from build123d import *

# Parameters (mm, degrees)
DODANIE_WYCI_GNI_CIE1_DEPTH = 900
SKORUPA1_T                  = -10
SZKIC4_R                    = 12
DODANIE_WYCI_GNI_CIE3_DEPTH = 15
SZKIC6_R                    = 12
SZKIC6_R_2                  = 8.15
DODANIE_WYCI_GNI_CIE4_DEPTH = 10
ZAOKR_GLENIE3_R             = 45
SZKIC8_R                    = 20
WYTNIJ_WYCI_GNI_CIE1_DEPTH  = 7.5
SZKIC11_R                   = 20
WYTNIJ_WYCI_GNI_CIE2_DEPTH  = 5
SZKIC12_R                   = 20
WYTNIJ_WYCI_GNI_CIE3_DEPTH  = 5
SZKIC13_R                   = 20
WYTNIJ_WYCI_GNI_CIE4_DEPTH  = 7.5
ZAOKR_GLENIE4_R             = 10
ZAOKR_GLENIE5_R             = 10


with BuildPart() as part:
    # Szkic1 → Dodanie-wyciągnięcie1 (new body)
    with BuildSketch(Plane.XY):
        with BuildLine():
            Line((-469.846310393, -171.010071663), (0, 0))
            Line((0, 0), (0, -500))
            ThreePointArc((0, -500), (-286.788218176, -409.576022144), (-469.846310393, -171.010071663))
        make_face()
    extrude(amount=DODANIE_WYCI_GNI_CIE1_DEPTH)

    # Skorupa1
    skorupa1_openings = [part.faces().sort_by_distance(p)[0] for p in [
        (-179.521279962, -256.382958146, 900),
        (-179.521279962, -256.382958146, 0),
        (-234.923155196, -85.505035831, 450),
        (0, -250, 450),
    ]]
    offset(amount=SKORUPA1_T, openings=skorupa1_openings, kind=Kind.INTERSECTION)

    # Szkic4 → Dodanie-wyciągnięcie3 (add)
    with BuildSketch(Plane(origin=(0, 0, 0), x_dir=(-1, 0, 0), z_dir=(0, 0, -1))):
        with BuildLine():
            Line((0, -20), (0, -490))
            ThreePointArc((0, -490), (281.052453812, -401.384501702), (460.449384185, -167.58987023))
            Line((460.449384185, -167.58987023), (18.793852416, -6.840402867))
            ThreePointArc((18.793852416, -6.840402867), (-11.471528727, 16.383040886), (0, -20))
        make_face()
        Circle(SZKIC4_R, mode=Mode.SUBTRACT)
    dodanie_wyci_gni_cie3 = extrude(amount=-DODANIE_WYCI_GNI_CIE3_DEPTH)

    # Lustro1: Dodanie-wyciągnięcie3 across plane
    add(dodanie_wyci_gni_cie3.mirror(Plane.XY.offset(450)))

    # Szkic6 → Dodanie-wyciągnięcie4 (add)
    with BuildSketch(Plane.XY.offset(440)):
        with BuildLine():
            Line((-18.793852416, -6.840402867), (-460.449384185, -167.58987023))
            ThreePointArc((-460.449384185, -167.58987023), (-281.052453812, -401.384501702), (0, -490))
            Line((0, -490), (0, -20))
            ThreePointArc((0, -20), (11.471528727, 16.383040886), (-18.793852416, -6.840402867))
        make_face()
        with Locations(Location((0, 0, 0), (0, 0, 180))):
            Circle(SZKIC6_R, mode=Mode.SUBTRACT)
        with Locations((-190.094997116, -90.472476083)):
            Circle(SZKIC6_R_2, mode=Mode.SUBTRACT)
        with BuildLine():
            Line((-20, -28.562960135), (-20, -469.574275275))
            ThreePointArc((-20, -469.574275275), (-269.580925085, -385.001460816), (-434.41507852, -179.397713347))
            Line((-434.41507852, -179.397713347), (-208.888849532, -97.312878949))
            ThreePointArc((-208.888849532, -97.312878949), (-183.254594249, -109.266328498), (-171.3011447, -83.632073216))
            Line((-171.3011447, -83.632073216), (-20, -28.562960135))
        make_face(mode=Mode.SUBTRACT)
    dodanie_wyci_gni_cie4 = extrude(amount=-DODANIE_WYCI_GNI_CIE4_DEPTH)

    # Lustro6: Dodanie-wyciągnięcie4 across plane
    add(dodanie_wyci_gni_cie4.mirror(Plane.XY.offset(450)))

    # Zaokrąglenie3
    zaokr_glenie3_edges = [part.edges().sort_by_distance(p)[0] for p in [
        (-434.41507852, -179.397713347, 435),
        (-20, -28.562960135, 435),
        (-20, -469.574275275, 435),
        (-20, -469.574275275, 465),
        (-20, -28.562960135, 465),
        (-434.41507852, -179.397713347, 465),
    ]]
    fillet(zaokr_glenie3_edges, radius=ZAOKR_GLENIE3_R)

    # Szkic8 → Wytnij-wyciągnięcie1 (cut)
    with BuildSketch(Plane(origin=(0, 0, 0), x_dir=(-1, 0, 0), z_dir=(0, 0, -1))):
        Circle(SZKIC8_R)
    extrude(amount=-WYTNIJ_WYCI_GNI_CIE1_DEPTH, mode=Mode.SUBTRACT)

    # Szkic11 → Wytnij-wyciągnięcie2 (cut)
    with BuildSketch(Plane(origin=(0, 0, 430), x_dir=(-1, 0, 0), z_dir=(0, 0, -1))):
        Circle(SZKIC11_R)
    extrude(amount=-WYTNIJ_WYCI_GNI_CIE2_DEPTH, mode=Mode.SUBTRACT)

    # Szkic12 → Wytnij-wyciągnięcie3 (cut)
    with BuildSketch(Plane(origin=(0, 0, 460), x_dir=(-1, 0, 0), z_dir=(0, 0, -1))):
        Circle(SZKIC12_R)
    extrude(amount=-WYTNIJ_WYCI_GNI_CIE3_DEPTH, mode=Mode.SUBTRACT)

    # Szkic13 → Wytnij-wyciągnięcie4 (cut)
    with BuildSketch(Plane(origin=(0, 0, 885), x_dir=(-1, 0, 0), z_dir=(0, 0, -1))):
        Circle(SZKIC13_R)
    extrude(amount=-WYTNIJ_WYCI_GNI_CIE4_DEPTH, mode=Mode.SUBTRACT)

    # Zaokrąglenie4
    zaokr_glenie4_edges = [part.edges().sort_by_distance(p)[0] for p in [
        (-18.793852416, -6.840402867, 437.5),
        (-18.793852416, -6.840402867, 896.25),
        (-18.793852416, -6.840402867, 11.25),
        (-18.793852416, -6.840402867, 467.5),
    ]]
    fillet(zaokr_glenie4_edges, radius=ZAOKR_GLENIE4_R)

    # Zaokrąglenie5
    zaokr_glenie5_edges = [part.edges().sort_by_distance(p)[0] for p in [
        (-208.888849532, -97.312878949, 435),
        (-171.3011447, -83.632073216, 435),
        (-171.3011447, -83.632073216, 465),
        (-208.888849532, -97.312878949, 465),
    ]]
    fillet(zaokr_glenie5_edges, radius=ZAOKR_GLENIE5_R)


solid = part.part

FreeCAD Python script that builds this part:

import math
import FreeCAD as App
import Part
import Sketcher

V = App.Vector
Q = App.Units.Quantity


def edges_at(feature, points):
    """Names of the edges that pass closest to the given points."""
    edges = feature.Shape.Edges
    near = lambda p: min(range(len(edges)), key=lambda i: edges[i].distToShape(Part.Vertex(*p))[0])
    return sorted({f"Edge{near(p) + 1}" for p in points})


def faces_at(feature, points):
    """Names of the faces that lie closest to the given points."""
    faces = feature.Shape.Faces
    near = lambda p: min(range(len(faces)), key=lambda i: faces[i].distToShape(Part.Vertex(*p))[0])
    return sorted({f"Face{near(p) + 1}" for p in points})

doc = App.newDocument("Part")
body = doc.addObject("PartDesign::Body", "Body")

# Sketch on XY plane
sketch1 = body.newObject("Sketcher::SketchObject", "Sketch")
sketch1.AttachmentSupport = (doc.getObject("XY_Plane"), [""])
sketch1.MapMode = "FlatFace"
sketch1.addGeometry([
    Part.LineSegment(V(0, 0, 0), V(-470, -171, 0)),
    Part.ArcOfCircle(Part.Circle(V(0, 0, 0), V(0, 0, 1), 500), math.radians(-160), math.radians(-90)),
    Part.LineSegment(V(0, -500, 0), V(0, 0, 0)),
], False)
sketch1.addConstraint([
    Sketcher.Constraint("Coincident", 0, 2, 1, 1),
    Sketcher.Constraint("Coincident", 1, 2, 2, 1),
    Sketcher.Constraint("Coincident", 2, 2, 0, 1),
    Sketcher.Constraint("Vertical", 2),
    Sketcher.Constraint("Coincident", 1, 3, -1, 1),
    Sketcher.Constraint("Coincident", 2, 2, -1, 1),
    Sketcher.Constraint("Radius", 1, Q("500 mm")),
    Sketcher.Constraint("Angle", 0, Q("-160 deg")),
])
pad1 = body.newObject("PartDesign::Pad", "Pad")
pad1.Profile = sketch1
pad1.Length = 900
doc.recompute()

thickness = body.newObject("PartDesign::Thickness", "Thickness")
thickness.Base = (pad1, faces_at(pad1, [
    (-234.923, -250, 900),
    (-234.923, -250, 0),
    (-234.923, -85.505, 450),
    (0, -250, 450),
]))
thickness.Value = 10
thickness.Reversed = True
thickness.Join = "Intersection"

# Sketch on XY plane
sketch2 = body.newObject("Sketcher::SketchObject", "Sketch001")
sketch2.AttachmentSupport = (doc.getObject("XY_Plane"), [""])
sketch2.MapMode = "FlatFace"
sketch2.addGeometry([
    Part.LineSegment(V(0, -20, 0), V(0, -490, 0)),  # 0
    Part.ArcOfCircle(Part.Circle(V(0, 0, 0), V(0, 0, 1), 490), math.radians(-160), math.radians(-90)),  # 1
    Part.LineSegment(V(-460, -168, 0), V(-19, -7, 0)),  # 2
    Part.ArcOfCircle(Part.Circle(V(0, 0, 0), V(0, 0, 1), 20), math.radians(-90), math.radians(200)),  # 3
    Part.Circle(V(0, 0, 0), V(0, 0, 1), 12),  # 4
], False)
sketch2.addConstraint([
    Sketcher.Constraint("Coincident", 0, 2, 1, 2),
    Sketcher.Constraint("Coincident", 1, 1, 2, 1),
    Sketcher.Constraint("Coincident", 2, 2, 3, 2),
    Sketcher.Constraint("Coincident", 3, 1, 0, 1),
    Sketcher.Constraint("Vertical", 0),
    Sketcher.Constraint("Coincident", 1, 3, -1, 1),
    Sketcher.Constraint("Coincident", 3, 3, -1, 1),
    Sketcher.Constraint("Coincident", 4, 3, -1, 1),
    Sketcher.Constraint("PointOnObject", 0, 2, -2),
    Sketcher.Constraint("Diameter", 4, Q("24 mm")),
    Sketcher.Constraint("Radius", 1, Q("490 mm")),
    Sketcher.Constraint("Radius", 3, Q("20 mm")),
    Sketcher.Constraint("Angle", 2, Q("20 deg")),
    Sketcher.Constraint("DistanceX", 2, 2, -1, 1, Q("18.793852 mm")),
])
pad2 = body.newObject("PartDesign::Pad", "Pad001")
pad2.Profile = sketch2
pad2.Length = 15
doc.recompute()

datumplane = body.newObject("PartDesign::Plane", "DatumPlane")
datumplane.AttachmentSupport = (doc.getObject("XY_Plane"), [""])
datumplane.MapMode = "FlatFace"
datumplane.AttachmentOffset = App.Placement(V(0, 0, 450), App.Rotation())
mirrored = body.newObject("PartDesign::Mirrored", "Mirrored")
mirrored.Originals = [pad2]
mirrored.MirrorPlane = (datumplane, [""])
body.Tip = mirrored

# Sketch on XY plane
sketch3 = body.newObject("Sketcher::SketchObject", "Sketch002")
sketch3.AttachmentSupport = (doc.getObject("XY_Plane"), [""])
sketch3.MapMode = "FlatFace"
sketch3.AttachmentOffset = App.Placement(V(0, 0, 440), App.Rotation())
sketch3.addGeometry([
    Part.LineSegment(V(-19, -7, 0), V(-460, -168, 0)),  # 0
    Part.ArcOfCircle(Part.Circle(V(0, 0, 0), V(0, 0, 1), 490), math.radians(-160), math.radians(-90)),  # 1
    Part.LineSegment(V(0, -490, 0), V(0, -20, 0)),  # 2
    Part.ArcOfCircle(Part.Circle(V(0, 0, 0), V(0, 0, 1), 20), math.radians(-90), math.radians(200)),  # 3
    Part.LineSegment(V(-171, -84, 0), V(-20, -29, 0)),  # 4
    Part.LineSegment(V(-20, -29, 0), V(-20, -470, 0)),  # 5
    Part.ArcOfCircle(Part.Circle(V(0, 0, 0), V(0, 0, 1), 470), math.radians(-158), math.radians(-92)),  # 6
    Part.LineSegment(V(-434, -179, 0), V(-209, -97, 0)),  # 7
    Part.ArcOfCircle(Part.Circle(V(-190, -90, 0), V(0, 0, 1), 20), math.radians(-160), math.radians(20)),  # 8
    Part.Circle(V(-190, -90, 0), V(0, 0, 1), 8),  # 9
    Part.Circle(V(0, 0, 0), V(0, 0, 1), 12),  # 10
], False)
sketch3.addConstraint([
    Sketcher.Constraint("Coincident", 0, 2, 1, 1),
    Sketcher.Constraint("Coincident", 1, 2, 2, 1),
    Sketcher.Constraint("Coincident", 2, 2, 3, 1),
    Sketcher.Constraint("Coincident", 3, 2, 0, 1),
    Sketcher.Constraint("Coincident", 4, 2, 5, 1),
    Sketcher.Constraint("Coincident", 5, 2, 6, 2),
    Sketcher.Constraint("Coincident", 6, 1, 7, 1),
    Sketcher.Constraint("Coincident", 7, 2, 8, 1),
    Sketcher.Constraint("Coincident", 8, 2, 4, 1),
    Sketcher.Constraint("Vertical", 2),
    Sketcher.Constraint("Vertical", 5),
    Sketcher.Constraint("Coincident", 1, 3, -1, 1),
    Sketcher.Constraint("Coincident", 3, 3, -1, 1),
    Sketcher.Constraint("Coincident", 6, 3, -1, 1),
    Sketcher.Constraint("Coincident", 10, 3, -1, 1),
    Sketcher.Constraint("Coincident", 9, 3, 8, 3),
    Sketcher.Constraint("Equal", 3, 8),
    Sketcher.Constraint("PointOnObject", 2, 2, -2),
    Sketcher.Constraint("Parallel", 0, 4),
    Sketcher.Constraint("Parallel", 4, 7),
    Sketcher.Constraint("Diameter", 10, Q("24 mm")),
    Sketcher.Constraint("Radius", 1, Q("490 mm")),
    Sketcher.Constraint("Radius", 3, Q("20 mm")),
    Sketcher.Constraint("Radius", 6, Q("470 mm")),
    Sketcher.Constraint("Diameter", 9, Q("16.3 mm")),
    Sketcher.Constraint("Angle", 0, Q("-160 deg")),
    Sketcher.Constraint("Distance", 7, Q("240 mm")),
    Sketcher.Constraint("DistanceX", 4, 2, -1, 1, Q("20 mm")),
    Sketcher.Constraint("DistanceY", 5, 2, 9, 3, Q("379.101799 mm")),
    Sketcher.Constraint("DistanceY", 5, 2, 5, 1, Q("441.011315 mm")),
    Sketcher.Constraint("DistanceY", 0, 2, -1, 1, Q("167.58987 mm")),
    Sketcher.Constraint("DistanceX", 7, 2, -1, 1, Q("208.88885 mm")),
])
pad3 = body.newObject("PartDesign::Pad", "Pad002")
pad3.Profile = sketch3
pad3.Length = 10
pad3.Reversed = True
doc.recompute()

datumplane2 = body.newObject("PartDesign::Plane", "DatumPlane001")
datumplane2.AttachmentSupport = (doc.getObject("XY_Plane"), [""])
datumplane2.MapMode = "FlatFace"
datumplane2.AttachmentOffset = App.Placement(V(0, 0, 450), App.Rotation())
mirrored2 = body.newObject("PartDesign::Mirrored", "Mirrored001")
mirrored2.Originals = [pad3]
mirrored2.MirrorPlane = (datumplane2, [""])
body.Tip = mirrored2
doc.recompute()

fillet = body.newObject("PartDesign::Fillet", "Fillet")
fillet.Base = (mirrored2, edges_at(mirrored2, [
    (-434.415, -179.398, 435),
    (-20, -28.563, 435),
    (-20, -469.574, 435),
    (-20, -469.574, 465),
    (-20, -28.563, 465),
    (-434.415, -179.398, 465),
]))
fillet.Radius = 45

# Sketch on XY plane
sketch4 = body.newObject("Sketcher::SketchObject", "Sketch003")
sketch4.AttachmentSupport = (doc.getObject("XY_Plane"), [""])
sketch4.MapMode = "FlatFace"
sketch4.addGeometry(Part.Circle(V(0, 0, 0), V(0, 0, 1), 20), False)
sketch4.addConstraint([
    Sketcher.Constraint("Coincident", 0, 3, -1, 1),
    Sketcher.Constraint("Diameter", 0, Q("40 mm")),
])
pocket1 = body.newObject("PartDesign::Pocket", "Pocket")
pocket1.Profile = sketch4
pocket1.Length = 7.5
pocket1.Reversed = True

# Sketch on XY plane
sketch5 = body.newObject("Sketcher::SketchObject", "Sketch004")
sketch5.AttachmentSupport = (doc.getObject("XY_Plane"), [""])
sketch5.MapMode = "FlatFace"
sketch5.AttachmentOffset = App.Placement(V(0, 0, 430), App.Rotation())
sketch5.addGeometry(Part.Circle(V(0, 0, 0), V(0, 0, 1), 20), False)
sketch5.addConstraint([
    Sketcher.Constraint("Coincident", 0, 3, -1, 1),
    Sketcher.Constraint("Diameter", 0, Q("40 mm")),
])
pocket2 = body.newObject("PartDesign::Pocket", "Pocket001")
pocket2.Profile = sketch5
pocket2.Length = 5
pocket2.Reversed = True

# Sketch on XY plane
sketch6 = body.newObject("Sketcher::SketchObject", "Sketch005")
sketch6.AttachmentSupport = (doc.getObject("XY_Plane"), [""])
sketch6.MapMode = "FlatFace"
sketch6.AttachmentOffset = App.Placement(V(0, 0, 460), App.Rotation())
sketch6.addGeometry(Part.Circle(V(0, 0, 0), V(0, 0, 1), 20), False)
sketch6.addConstraint([
    Sketcher.Constraint("Coincident", 0, 3, -1, 1),
    Sketcher.Constraint("Diameter", 0, Q("40 mm")),
])
pocket3 = body.newObject("PartDesign::Pocket", "Pocket002")
pocket3.Profile = sketch6
pocket3.Length = 5
pocket3.Reversed = True

# Sketch on XY plane
sketch7 = body.newObject("Sketcher::SketchObject", "Sketch006")
sketch7.AttachmentSupport = (doc.getObject("XY_Plane"), [""])
sketch7.MapMode = "FlatFace"
sketch7.AttachmentOffset = App.Placement(V(0, 0, 885), App.Rotation())
sketch7.addGeometry(Part.Circle(V(0, 0, 0), V(0, 0, 1), 20), False)
sketch7.addConstraint([
    Sketcher.Constraint("Coincident", 0, 3, -1, 1),
    Sketcher.Constraint("Diameter", 0, Q("40 mm")),
])
pocket4 = body.newObject("PartDesign::Pocket", "Pocket003")
pocket4.Profile = sketch7
pocket4.Length = 7.5
pocket4.Reversed = True
doc.recompute()

fillet2 = body.newObject("PartDesign::Fillet", "Fillet001")
fillet2.Base = (pocket4, edges_at(pocket4, [
    (-18.794, -6.84, 437.5),
    (-18.794, -6.84, 896.25),
    (-18.794, -6.84, 11.25),
    (-18.794, -6.84, 467.5),
]))
fillet2.Radius = 10
doc.recompute()

fillet3 = body.newObject("PartDesign::Fillet", "Fillet002")
fillet3.Base = (fillet2, edges_at(fillet2, [
    (-208.889, -97.313, 435),
    (-171.301, -83.632, 435),
    (-171.301, -83.632, 465),
    (-208.889, -97.313, 465),
]))
fillet3.Radius = 10

doc.recompute()
